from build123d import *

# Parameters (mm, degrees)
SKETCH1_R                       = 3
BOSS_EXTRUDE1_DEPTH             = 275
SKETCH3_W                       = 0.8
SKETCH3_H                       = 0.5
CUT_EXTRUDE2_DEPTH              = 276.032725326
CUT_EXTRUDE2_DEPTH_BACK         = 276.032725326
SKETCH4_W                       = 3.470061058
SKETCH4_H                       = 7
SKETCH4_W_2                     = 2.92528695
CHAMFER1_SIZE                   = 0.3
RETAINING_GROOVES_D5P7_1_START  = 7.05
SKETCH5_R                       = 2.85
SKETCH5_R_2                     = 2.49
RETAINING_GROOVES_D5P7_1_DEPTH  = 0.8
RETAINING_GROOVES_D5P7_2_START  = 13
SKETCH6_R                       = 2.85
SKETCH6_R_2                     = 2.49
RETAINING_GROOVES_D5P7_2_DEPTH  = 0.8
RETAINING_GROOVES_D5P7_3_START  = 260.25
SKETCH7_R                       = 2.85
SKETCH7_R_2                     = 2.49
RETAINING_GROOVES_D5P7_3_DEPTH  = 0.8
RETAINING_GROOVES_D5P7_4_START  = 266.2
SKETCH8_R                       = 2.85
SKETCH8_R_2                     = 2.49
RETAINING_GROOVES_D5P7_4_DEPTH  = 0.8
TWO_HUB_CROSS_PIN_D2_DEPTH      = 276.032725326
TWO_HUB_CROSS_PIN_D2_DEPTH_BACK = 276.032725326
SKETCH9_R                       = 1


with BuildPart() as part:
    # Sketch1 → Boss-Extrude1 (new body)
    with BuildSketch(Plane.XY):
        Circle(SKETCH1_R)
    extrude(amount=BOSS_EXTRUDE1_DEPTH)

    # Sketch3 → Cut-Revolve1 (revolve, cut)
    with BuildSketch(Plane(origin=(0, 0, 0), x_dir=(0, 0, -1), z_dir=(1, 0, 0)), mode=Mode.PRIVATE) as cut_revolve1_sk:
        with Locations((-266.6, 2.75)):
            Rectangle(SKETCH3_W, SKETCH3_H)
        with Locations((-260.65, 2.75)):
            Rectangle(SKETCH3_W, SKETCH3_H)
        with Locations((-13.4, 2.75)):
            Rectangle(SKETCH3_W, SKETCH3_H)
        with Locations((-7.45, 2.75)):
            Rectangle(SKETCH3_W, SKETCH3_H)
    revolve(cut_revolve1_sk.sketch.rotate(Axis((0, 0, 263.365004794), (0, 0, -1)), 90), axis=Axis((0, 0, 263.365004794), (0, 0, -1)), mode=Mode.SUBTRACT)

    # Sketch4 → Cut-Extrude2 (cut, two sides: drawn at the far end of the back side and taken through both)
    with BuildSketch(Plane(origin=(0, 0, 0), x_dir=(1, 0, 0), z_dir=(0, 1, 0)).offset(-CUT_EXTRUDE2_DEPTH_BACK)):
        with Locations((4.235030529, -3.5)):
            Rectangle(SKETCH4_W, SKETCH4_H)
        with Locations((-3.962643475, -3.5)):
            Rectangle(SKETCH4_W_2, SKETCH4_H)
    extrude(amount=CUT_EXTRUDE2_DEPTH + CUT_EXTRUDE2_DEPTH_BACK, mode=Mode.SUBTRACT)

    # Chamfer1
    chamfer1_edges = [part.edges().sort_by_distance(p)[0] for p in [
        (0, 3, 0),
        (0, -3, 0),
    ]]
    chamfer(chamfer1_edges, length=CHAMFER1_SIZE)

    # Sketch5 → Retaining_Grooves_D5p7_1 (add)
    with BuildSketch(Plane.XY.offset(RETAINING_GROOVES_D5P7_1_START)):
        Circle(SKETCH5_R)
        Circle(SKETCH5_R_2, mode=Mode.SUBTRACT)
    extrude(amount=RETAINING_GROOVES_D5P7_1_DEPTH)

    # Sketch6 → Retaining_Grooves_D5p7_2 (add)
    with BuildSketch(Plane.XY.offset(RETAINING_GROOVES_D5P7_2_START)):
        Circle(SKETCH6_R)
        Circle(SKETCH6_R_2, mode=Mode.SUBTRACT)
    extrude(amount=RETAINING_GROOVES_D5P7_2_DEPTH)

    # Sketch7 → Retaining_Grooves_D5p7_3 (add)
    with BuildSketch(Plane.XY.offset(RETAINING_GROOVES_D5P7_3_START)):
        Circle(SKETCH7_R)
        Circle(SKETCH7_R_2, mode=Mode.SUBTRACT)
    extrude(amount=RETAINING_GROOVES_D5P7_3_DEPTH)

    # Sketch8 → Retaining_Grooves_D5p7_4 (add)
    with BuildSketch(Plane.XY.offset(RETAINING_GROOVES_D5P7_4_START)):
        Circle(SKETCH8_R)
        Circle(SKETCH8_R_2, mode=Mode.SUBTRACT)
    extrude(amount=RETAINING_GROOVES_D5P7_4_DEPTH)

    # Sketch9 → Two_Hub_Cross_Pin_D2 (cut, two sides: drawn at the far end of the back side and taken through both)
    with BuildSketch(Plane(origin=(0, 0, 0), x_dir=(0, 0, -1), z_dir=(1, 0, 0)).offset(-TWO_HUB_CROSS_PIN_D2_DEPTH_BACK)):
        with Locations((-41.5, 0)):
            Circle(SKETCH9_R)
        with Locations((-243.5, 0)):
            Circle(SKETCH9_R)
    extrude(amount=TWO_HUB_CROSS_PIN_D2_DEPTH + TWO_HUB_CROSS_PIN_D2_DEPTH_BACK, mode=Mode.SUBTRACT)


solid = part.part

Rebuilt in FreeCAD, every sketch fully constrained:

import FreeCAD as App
import Part
import Sketcher
Q = App.Units.Quantity


def edges_at(feature, points):
    """Names of the edges that pass closest to the given points."""
    edges = feature.Shape.Edges
    near = lambda p: min(range(len(edges)), key=lambda i: edges[i].distToShape(Part.Vertex(*p))[0])
    return sorted({f"Edge{near(p) + 1}" for p in points})


def add_polygon(sketch, points):
    """Adds a closed chain of lines whose ends are joined by coincident constraints."""
    first, n = sketch.GeometryCount, len(points)
    for a, b in zip(points, points[1:] + points[:1]):
        sketch.addGeometry(Part.LineSegment(App.Vector(*a, 0), App.Vector(*b, 0)), False)
    for i in range(n):
        sketch.addConstraint(Sketcher.Constraint("Coincident", first + i, 2, first + (i + 1) % n, 1))

doc = App.newDocument("Part")
body = doc.addObject("PartDesign::Body", "Body")

sketch1 = doc.addObject("Sketcher::SketchObject", "Sketch")
body.addObject(sketch1)
sketch1.AttachmentSupport = (doc.XY_Plane, [""])
sketch1.MapMode = "FlatFace"
sketch1.addGeometry(Part.Circle(App.Vector(0, 0, 0), App.Vector(0, 0, 1), 3), False)
sketch1.addConstraint(Sketcher.Constraint("Coincident", 0, 3, -1, 1))
sketch1.addConstraint(Sketcher.Constraint("Diameter", 0, Q("6 mm")))
pad1 = doc.addObject("PartDesign::Pad", "Pad")
body.addObject(pad1)
pad1.Profile = sketch1
pad1.Length = 275

sketch2 = doc.addObject("Sketcher::SketchObject", "Sketch001")
body.addObject(sketch2)
sketch2.AttachmentSupport = (doc.YZ_Plane, [""])
sketch2.MapMode = "FlatFace"
add_polygon(sketch2, [(3, 267), (2.5, 267), (2.5, 266.2), (3, 266.2)])
add_polygon(sketch2, [(3, 261.1), (2.5, 261.1), (2.5, 260.2), (3, 260.2)])
add_polygon(sketch2, [(3, 13.8), (2.5, 13.8), (2.5, 13), (3, 13)])
add_polygon(sketch2, [(3, 7.8), (2.5, 7.8), (2.5, 7), (3, 7)])
sketch2.addConstraint(Sketcher.Constraint("Horizontal", 0))
sketch2.addConstraint(Sketcher.Constraint("Vertical", 1))
sketch2.addConstraint(Sketcher.Constraint("Horizontal", 2))
sketch2.addConstraint(Sketcher.Constraint("Vertical", 3))
sketch2.addConstraint(Sketcher.Constraint("Horizontal", 4))
sketch2.addConstraint(Sketcher.Constraint("Vertical", 5))
sketch2.addConstraint(Sketcher.Constraint("Horizontal", 6))
sketch2.addConstraint(Sketcher.Constraint("Vertical", 7))
sketch2.addConstraint(Sketcher.Constraint("Horizontal", 8))
sketch2.addConstraint(Sketcher.Constraint("Vertical", 9))
sketch2.addConstraint(Sketcher.Constraint("Horizontal", 10))
sketch2.addConstraint(Sketcher.Constraint("Vertical", 11))
sketch2.addConstraint(Sketcher.Constraint("Horizontal", 12))
sketch2.addConstraint(Sketcher.Constraint("Vertical", 13))
sketch2.addConstraint(Sketcher.Constraint("Horizontal", 14))
sketch2.addConstraint(Sketcher.Constraint("Vertical", 15))
sketch2.addConstraint(Sketcher.Constraint("Vertical", 1, 2, 4, 2))
sketch2.addConstraint(Sketcher.Constraint("Vertical", 3, 2, 6, 2))
sketch2.addConstraint(Sketcher.Constraint("Vertical", 5, 2, 8, 2))
sketch2.addConstraint(Sketcher.Constraint("Vertical", 7, 2, 10, 2))
sketch2.addConstraint(Sketcher.Constraint("Vertical", 9, 2, 12, 2))
sketch2.addConstraint(Sketcher.Constraint("Vertical", 11, 2, 14, 2))
sketch2.addConstraint(Sketcher.Constraint("Equal", 3, 5))
sketch2.addConstraint(Sketcher.Constraint("Equal", 7, 9))
sketch2.addConstraint(Sketcher.Constraint("Equal", 11, 13))
sketch2.addConstraint(Sketcher.Constraint("DistanceX", 0, 2, 0, 1, Q("0.5 mm")))
sketch2.addConstraint(Sketcher.Constraint("DistanceY", 1, 2, 1, 1, Q("0.8 mm")))
sketch2.addConstraint(Sketcher.Constraint("DistanceY", -1, 1, 0, 2, Q("267 mm")))
sketch2.addConstraint(Sketcher.Constraint("DistanceX", -1, 1, 2, 2, Q("3 mm")))
sketch2.addConstraint(Sketcher.Constraint("DistanceY", -1, 1, 9, 2, Q("13 mm")))
sketch2.addConstraint(Sketcher.Constraint("DistanceY", 12, 2, 5, 2, Q("252.4 mm")))
sketch2.addConstraint(Sketcher.Constraint("DistanceY", -1, 1, 4, 2, Q("261.05 mm")))
groove = doc.addObject("PartDesign::Groove", "Groove")
body.addObject(groove)
groove.Profile = sketch2
groove.ReferenceAxis = (sketch2, ["V_Axis"])
groove.Angle = 360

sketch3 = doc.addObject("Sketcher::SketchObject", "Sketch002")
body.addObject(sketch3)
sketch3.AttachmentSupport = (doc.XZ_Plane, [""])
sketch3.MapMode = "FlatFace"
add_polygon(sketch3, [(2.5, 0), (2.5, 7), (6, 7), (6, 0)])
add_polygon(sketch3, [(-5.4, 0), (-5.4, 7), (-2.5, 7), (-2.5, 0)])
sketch3.addConstraint(Sketcher.Constraint("Vertical", 0))
sketch3.addConstraint(Sketcher.Constraint("Horizontal", 1))
sketch3.addConstraint(Sketcher.Constraint("Vertical", 2))
sketch3.addConstraint(Sketcher.Constraint("Horizontal", 3))
sketch3.addConstraint(Sketcher.Constraint("Vertical", 4))
sketch3.addConstraint(Sketcher.Constraint("Horizontal", 5))
sketch3.addConstraint(Sketcher.Constraint("Vertical", 6))
sketch3.addConstraint(Sketcher.Constraint("Horizontal", 7))
sketch3.addConstraint(Sketcher.Constraint("Symmetric", 3, 2, 6, 2, -1, 1))
sketch3.addConstraint(Sketcher.Constraint("PointOnObject", 2, 2, -1))
sketch3.addConstraint(Sketcher.Constraint("Horizontal", 1, 2, 4, 2))
sketch3.addConstraint(Sketcher.Constraint("DistanceY", 0, 1, 0, 2, Q("7 mm")))
sketch3.addConstraint(Sketcher.Constraint("DistanceX", 5, 2, 0, 2, Q("5 mm")))
sketch3.addConstraint(Sketcher.Constraint("DistanceX", 1, 1, 1, 2, Q("3.470061 mm")))
sketch3.addConstraint(Sketcher.Constraint("DistanceX", 5, 1, 5, 2, Q("2.925287 mm")))
pocket1 = doc.addObject("PartDesign::Pocket", "Pocket")
body.addObject(pocket1)
pocket1.Profile = sketch3
pocket1.Type = "ThroughAll"
pocket1.Midplane = True
doc.recompute()

chamfer = doc.addObject("PartDesign::Chamfer", "Chamfer")
body.addObject(chamfer)
chamfer.Base = (pocket1, edges_at(pocket1, [(0, 3, 0), (0, -3, 0)]))
chamfer.Size = 0.3

sketch4 = doc.addObject("Sketcher::SketchObject", "Sketch003")
body.addObject(sketch4)
sketch4.AttachmentSupport = (doc.XY_Plane, [""])
sketch4.MapMode = "FlatFace"
sketch4.AttachmentOffset = App.Placement(App.Vector(0, 0, 7.05), App.Rotation())
sketch4.addGeometry(Part.Circle(App.Vector(0, 0, 0), App.Vector(0, 0, 1), 2.9), False)
sketch4.addGeometry(Part.Circle(App.Vector(0, 0, 0), App.Vector(0, 0, 1), 2.5), False)
sketch4.addConstraint(Sketcher.Constraint("Coincident", 0, 3, -1, 1))
sketch4.addConstraint(Sketcher.Constraint("Coincident", 1, 3, -1, 1))
sketch4.addConstraint(Sketcher.Constraint("Diameter", 0, Q("5.7 mm")))
sketch4.addConstraint(Sketcher.Constraint("Diameter", 1, Q("4.98 mm")))
pad2 = doc.addObject("PartDesign::Pad", "Pad001")
body.addObject(pad2)
pad2.Profile = sketch4
pad2.Length = 0.8

sketch5 = doc.addObject("Sketcher::SketchObject", "Sketch004")
body.addObject(sketch5)
sketch5.AttachmentSupport = (doc.XY_Plane, [""])
sketch5.MapMode = "FlatFace"
sketch5.AttachmentOffset = App.Placement(App.Vector(0, 0, 13), App.Rotation())
sketch5.addGeometry(Part.Circle(App.Vector(0, 0, 0), App.Vector(0, 0, 1), 2.9), False)
sketch5.addGeometry(Part.Circle(App.Vector(0, 0, 0), App.Vector(0, 0, 1), 2.5), False)
sketch5.addConstraint(Sketcher.Constraint("Coincident", 0, 3, -1, 1))
sketch5.addConstraint(Sketcher.Constraint("Coincident", 1, 3, -1, 1))
sketch5.addConstraint(Sketcher.Constraint("Diameter", 0, Q("5.7 mm")))
sketch5.addConstraint(Sketcher.Constraint("Diameter", 1, Q("4.98 mm")))
pad3 = doc.addObject("PartDesign::Pad", "Pad002")
body.addObject(pad3)
pad3.Profile = sketch5
pad3.Length = 0.8

sketch6 = doc.addObject("Sketcher::SketchObject", "Sketch005")
body.addObject(sketch6)
sketch6.AttachmentSupport = (doc.XY_Plane, [""])
sketch6.MapMode = "FlatFace"
sketch6.AttachmentOffset = App.Placement(App.Vector(0, 0, 260.25), App.Rotation())
sketch6.addGeometry(Part.Circle(App.Vector(0, 0, 0), App.Vector(0, 0, 1), 2.9), False)
sketch6.addGeometry(Part.Circle(App.Vector(0, 0, 0), App.Vector(0, 0, 1), 2.5), False)
sketch6.addConstraint(Sketcher.Constraint("Coincident", 0, 3, -1, 1))
sketch6.addConstraint(Sketcher.Constraint("Coincident", 1, 3, -1, 1))
sketch6.addConstraint(Sketcher.Constraint("Diameter", 0, Q("5.7 mm")))
sketch6.addConstraint(Sketcher.Constraint("Diameter", 1, Q("4.98 mm")))
pad4 = doc.addObject("PartDesign::Pad", "Pad003")
body.addObject(pad4)
pad4.Profile = sketch6
pad4.Length = 0.8

sketch7 = doc.addObject("Sketcher::SketchObject", "Sketch006")
body.addObject(sketch7)
sketch7.AttachmentSupport = (doc.XY_Plane, [""])
sketch7.MapMode = "FlatFace"
sketch7.AttachmentOffset = App.Placement(App.Vector(0, 0, 266.2), App.Rotation())
sketch7.addGeometry(Part.Circle(App.Vector(0, 0, 0), App.Vector(0, 0, 1), 2.9), False)
sketch7.addGeometry(Part.Circle(App.Vector(0, 0, 0), App.Vector(0, 0, 1), 2.5), False)
sketch7.addConstraint(Sketcher.Constraint("Coincident", 0, 3, -1, 1))
sketch7.addConstraint(Sketcher.Constraint("Coincident", 1, 3, -1, 1))
sketch7.addConstraint(Sketcher.Constraint("Diameter", 0, Q("5.7 mm")))
sketch7.addConstraint(Sketcher.Constraint("Diameter", 1, Q("4.98 mm")))
pad5 = doc.addObject("PartDesign::Pad", "Pad004")
body.addObject(pad5)
pad5.Profile = sketch7
pad5.Length = 0.8

sketch8 = doc.addObject("Sketcher::SketchObject", "Sketch007")
body.addObject(sketch8)
sketch8.AttachmentSupport = (doc.YZ_Plane, [""])
sketch8.MapMode = "FlatFace"
sketch8.addGeometry(Part.Circle(App.Vector(0, 41.5, 0), App.Vector(0, 0, 1), 1), False)
sketch8.addGeometry(Part.Circle(App.Vector(0, 243.5, 0), App.Vector(0, 0, 1), 1), False)
sketch8.addConstraint(Sketcher.Constraint("Equal", 0, 1))
sketch8.addConstraint(Sketcher.Constraint("PointOnObject", 0, 3, -2))
sketch8.addConstraint(Sketcher.Constraint("PointOnObject", 1, 3, -2))
sketch8.addConstraint(Sketcher.Constraint("Diameter", 0, Q("2 mm")))
sketch8.addConstraint(Sketcher.Constraint("DistanceY", 0, 3, 1, 3, Q("202 mm")))
sketch8.addConstraint(Sketcher.Constraint("DistanceY", -1, 1, 0, 3, Q("41.5 mm")))
pocket2 = doc.addObject("PartDesign::Pocket", "Pocket001")
body.addObject(pocket2)
pocket2.Profile = sketch8
pocket2.Type = "ThroughAll"
pocket2.Midplane = True

doc.recompute()
